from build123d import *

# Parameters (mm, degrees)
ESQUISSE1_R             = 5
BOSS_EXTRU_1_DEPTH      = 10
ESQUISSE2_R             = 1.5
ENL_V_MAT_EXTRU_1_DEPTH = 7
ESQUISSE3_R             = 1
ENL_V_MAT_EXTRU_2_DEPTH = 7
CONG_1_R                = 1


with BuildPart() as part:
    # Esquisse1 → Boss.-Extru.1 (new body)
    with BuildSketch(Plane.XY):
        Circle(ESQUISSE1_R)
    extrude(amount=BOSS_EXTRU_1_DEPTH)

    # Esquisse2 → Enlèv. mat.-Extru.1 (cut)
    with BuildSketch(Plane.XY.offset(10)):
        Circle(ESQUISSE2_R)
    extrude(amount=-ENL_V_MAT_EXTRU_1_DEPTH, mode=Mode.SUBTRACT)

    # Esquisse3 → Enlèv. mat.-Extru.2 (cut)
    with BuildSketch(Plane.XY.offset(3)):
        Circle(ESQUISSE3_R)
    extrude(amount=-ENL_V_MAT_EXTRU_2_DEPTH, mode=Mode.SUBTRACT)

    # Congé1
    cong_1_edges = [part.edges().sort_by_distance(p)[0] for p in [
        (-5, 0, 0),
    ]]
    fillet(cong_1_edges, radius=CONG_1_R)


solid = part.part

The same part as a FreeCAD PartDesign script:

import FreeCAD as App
import Part
import Sketcher

V = App.Vector


def edges_at(feature, points):
    """Names of the edges that pass closest to the given points."""
    edges = feature.Shape.Edges
    near = lambda p: min(range(len(edges)), key=lambda i: edges[i].distToShape(Part.Vertex(*p))[0])
    return sorted({f"Edge{near(p) + 1}" for p in points})

doc = App.newDocument("Part")
body = doc.addObject("PartDesign::Body", "Body")

# Sketch on XY plane
sketch1 = doc.addObject("Sketcher::SketchObject", "Sketch")
body.addObject(sketch1)
sketch1.AttachmentSupport = (doc.XY_Plane, [""])
sketch1.MapMode = "FlatFace"
sketch1.addGeometry(Part.Circle(V(0, 0, 0), V(0, 0, 1), 5), False)
sketch1.addConstraint([
    Sketcher.Constraint("Coincident", 0, 3, -1, 1),
    Sketcher.Constraint("Diameter", 0, 10.0),
])
pad1 = doc.addObject("PartDesign::Pad", "Pad")
body.addObject(pad1)
pad1.Profile = sketch1
pad1.Length = 10

# Sketch on XY plane
sketch2 = doc.addObject("Sketcher::SketchObject", "Sketch001")
body.addObject(sketch2)
sketch2.AttachmentSupport = (doc.XY_Plane, [""])
sketch2.MapMode = "FlatFace"
sketch2.AttachmentOffset = App.Placement(V(0, 0, 10), App.Rotation())
sketch2.addGeometry(Part.Circle(V(0, 0, 0), V(0, 0, 1), 1.5), False)
sketch2.addConstraint([
    Sketcher.Constraint("Coincident", 0, 3, -1, 1),
    Sketcher.Constraint("Diameter", 0, 3.0),
])
pocket1 = doc.addObject("PartDesign::Pocket", "Pocket")
body.addObject(pocket1)
pocket1.Profile = sketch2
pocket1.Length = 7

# Sketch on XY plane
sketch3 = doc.addObject("Sketcher::SketchObject", "Sketch002")
body.addObject(sketch3)
sketch3.AttachmentSupport = (doc.XY_Plane, [""])
sketch3.MapMode = "FlatFace"
sketch3.AttachmentOffset = App.Placement(V(0, 0, 3), App.Rotation())
sketch3.addGeometry(Part.Circle(V(0, 0, 0), V(0, 0, 1), 1), False)
sketch3.addConstraint([
    Sketcher.Constraint("Coincident", 0, 3, -1, 1),
    Sketcher.Constraint("Diameter", 0, 2.0),
])
pocket2 = doc.addObject("PartDesign::Pocket", "Pocket001")
body.addObject(pocket2)
pocket2.Profile = sketch3
pocket2.Length = 7
doc.recompute()

fillet = doc.addObject("PartDesign::Fillet", "Fillet")
body.addObject(fillet)
fillet.Base = (pocket2, edges_at(pocket2, [(-5, 0, 0)]))
fillet.Radius = 1

doc.recompute()
